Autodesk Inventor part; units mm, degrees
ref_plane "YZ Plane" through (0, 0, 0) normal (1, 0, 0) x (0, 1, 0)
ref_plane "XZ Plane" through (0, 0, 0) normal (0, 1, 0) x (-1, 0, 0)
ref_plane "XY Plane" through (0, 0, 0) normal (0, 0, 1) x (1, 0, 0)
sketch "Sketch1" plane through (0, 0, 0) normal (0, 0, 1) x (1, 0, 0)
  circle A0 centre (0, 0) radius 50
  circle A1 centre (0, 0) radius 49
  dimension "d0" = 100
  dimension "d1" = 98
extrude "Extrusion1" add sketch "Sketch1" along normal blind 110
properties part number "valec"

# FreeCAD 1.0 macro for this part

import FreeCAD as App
import Part
import Sketcher
Q = App.Units.Quantity

doc = App.newDocument("Part")
body = doc.addObject("PartDesign::Body", "Body")

# Sketch on XY plane
sketch1 = body.newObject("Sketcher::SketchObject", "Sketch")
sketch1.AttachmentSupport = (doc.getObject("XY_Plane"), [""])
sketch1.MapMode = "FlatFace"
sketch1.addGeometry([
    Part.Circle(App.Vector(0, 0, 0), App.Vector(0, 0, 1), 50),
    Part.Circle(App.Vector(0, 0, 0), App.Vector(0, 0, 1), 49),
], False)
sketch1.addConstraint([
    Sketcher.Constraint("Coincident", 0, 3, -1, 1),
    Sketcher.Constraint("Coincident", 1, 3, -1, 1),
    Sketcher.Constraint("Diameter", 0, Q("100 mm")),
    Sketcher.Constraint("Diameter", 1, Q("98 mm")),
])
pad1 = body.newObject("PartDesign::Pad", "Pad")
pad1.Profile = sketch1
pad1.Length = 110

doc.recompute()
